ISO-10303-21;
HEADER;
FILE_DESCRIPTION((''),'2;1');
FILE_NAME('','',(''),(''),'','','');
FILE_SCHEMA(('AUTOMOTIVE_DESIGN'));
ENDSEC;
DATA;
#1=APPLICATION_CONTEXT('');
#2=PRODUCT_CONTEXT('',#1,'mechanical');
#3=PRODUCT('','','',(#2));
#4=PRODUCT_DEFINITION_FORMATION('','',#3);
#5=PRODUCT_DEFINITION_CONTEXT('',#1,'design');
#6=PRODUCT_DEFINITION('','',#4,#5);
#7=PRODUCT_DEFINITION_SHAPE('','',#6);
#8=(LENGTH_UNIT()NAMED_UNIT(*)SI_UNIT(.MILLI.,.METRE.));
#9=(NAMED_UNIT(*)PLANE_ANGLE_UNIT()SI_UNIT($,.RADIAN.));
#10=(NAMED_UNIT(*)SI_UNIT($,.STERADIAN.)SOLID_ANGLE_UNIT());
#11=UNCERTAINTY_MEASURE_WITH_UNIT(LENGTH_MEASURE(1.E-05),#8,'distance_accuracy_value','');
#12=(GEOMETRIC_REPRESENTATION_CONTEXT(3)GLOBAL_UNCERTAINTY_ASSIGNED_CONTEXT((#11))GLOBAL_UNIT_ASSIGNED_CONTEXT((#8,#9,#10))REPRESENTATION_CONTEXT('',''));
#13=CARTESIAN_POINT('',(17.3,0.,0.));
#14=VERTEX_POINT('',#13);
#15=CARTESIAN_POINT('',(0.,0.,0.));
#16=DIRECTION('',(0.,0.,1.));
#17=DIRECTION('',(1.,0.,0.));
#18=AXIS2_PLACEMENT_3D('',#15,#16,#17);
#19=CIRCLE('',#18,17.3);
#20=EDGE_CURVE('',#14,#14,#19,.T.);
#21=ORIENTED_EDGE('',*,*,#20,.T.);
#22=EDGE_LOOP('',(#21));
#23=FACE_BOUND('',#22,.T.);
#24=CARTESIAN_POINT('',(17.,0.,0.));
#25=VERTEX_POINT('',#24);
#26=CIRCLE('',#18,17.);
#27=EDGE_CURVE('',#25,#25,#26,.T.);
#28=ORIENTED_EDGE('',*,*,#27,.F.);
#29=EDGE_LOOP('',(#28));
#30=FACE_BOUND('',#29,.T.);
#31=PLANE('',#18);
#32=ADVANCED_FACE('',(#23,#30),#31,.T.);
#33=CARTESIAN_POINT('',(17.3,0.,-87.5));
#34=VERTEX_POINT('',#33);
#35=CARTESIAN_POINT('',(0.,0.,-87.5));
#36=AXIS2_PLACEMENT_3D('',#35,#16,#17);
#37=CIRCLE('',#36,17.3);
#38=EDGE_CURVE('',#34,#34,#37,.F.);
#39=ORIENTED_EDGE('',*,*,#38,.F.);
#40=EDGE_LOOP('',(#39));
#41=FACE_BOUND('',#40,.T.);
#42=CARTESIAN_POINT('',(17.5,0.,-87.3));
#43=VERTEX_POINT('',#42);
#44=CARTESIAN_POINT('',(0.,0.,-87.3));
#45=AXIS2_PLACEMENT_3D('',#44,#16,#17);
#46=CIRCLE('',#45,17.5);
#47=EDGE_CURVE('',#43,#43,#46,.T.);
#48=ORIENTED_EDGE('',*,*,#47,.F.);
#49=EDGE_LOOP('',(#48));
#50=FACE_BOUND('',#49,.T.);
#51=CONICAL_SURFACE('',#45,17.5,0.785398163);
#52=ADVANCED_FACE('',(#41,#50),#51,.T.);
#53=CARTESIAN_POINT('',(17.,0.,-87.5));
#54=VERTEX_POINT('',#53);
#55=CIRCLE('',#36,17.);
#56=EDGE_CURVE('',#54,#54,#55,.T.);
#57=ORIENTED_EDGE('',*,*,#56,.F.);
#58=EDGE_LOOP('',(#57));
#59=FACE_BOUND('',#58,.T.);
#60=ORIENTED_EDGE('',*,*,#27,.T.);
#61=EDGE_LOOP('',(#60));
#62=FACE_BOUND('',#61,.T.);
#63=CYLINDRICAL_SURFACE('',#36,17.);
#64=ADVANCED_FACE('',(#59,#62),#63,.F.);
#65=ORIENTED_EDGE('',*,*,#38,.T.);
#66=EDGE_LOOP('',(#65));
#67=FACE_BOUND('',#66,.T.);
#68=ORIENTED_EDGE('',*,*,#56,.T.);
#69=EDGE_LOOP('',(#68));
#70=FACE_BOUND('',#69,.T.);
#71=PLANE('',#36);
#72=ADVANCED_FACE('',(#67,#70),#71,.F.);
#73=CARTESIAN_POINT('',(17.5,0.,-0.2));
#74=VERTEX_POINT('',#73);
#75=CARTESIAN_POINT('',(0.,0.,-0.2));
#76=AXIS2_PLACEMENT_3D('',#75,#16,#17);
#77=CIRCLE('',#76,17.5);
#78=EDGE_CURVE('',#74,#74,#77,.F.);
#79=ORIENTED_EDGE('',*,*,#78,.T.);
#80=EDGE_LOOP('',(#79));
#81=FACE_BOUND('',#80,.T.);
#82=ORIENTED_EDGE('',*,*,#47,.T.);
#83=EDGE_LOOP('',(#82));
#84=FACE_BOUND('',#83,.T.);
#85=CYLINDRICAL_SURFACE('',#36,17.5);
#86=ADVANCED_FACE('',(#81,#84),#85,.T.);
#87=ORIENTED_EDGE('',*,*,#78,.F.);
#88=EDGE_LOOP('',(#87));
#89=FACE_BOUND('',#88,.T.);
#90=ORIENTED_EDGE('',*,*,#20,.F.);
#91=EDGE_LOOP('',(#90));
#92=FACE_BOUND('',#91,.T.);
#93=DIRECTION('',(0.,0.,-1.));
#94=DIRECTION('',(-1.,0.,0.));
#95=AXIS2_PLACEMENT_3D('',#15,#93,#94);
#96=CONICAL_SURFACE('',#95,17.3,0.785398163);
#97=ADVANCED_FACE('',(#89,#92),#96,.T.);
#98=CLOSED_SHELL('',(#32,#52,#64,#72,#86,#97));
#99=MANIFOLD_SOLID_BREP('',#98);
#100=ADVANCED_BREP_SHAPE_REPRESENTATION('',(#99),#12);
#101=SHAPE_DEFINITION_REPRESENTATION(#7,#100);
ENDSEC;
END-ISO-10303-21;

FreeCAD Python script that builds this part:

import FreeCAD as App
import Part
import Sketcher
from FreeCAD import Vector


def edges_at(feature, points):
    """Names of the edges that pass closest to the given points."""
    edges = feature.Shape.Edges
    near = lambda p: min(range(len(edges)), key=lambda i: edges[i].distToShape(Part.Vertex(*p))[0])
    return sorted({f"Edge{near(p) + 1}" for p in points})

doc = App.newDocument("Part")
body = doc.addObject("PartDesign::Body", "Body")

# Sketch on XY plane
sketch1 = body.newObject("Sketcher::SketchObject", "Sketch")
sketch1.AttachmentSupport = (doc.getObject("XY_Plane"), [""])
sketch1.MapMode = "FlatFace"
sketch1.addGeometry(Part.Circle(Vector(0, 0, 0), Vector(0, 0, 1), 18), False)
sketch1.addGeometry(Part.Circle(Vector(0, 0, 0), Vector(0, 0, 1), 17), False)
sketch1.addConstraint(Sketcher.Constraint("Coincident", 0, 3, -1, 1))
sketch1.addConstraint(Sketcher.Constraint("Coincident", 1, 3, -1, 1))
sketch1.addConstraint(Sketcher.Constraint("Diameter", 0, 35.0))
sketch1.addConstraint(Sketcher.Constraint("Diameter", 1, 34.0))
pad1 = body.newObject("PartDesign::Pad", "Pad")
pad1.Profile = sketch1
pad1.Length = 87.5
pad1.Reversed = True
doc.recompute()

chamfer = body.newObject("PartDesign::Chamfer", "Chamfer")
chamfer.Base = (pad1, edges_at(pad1, [(-17.5, 0, 0), (-17.5, 0, -87.5)]))
chamfer.Size = 0.2

doc.recompute()
